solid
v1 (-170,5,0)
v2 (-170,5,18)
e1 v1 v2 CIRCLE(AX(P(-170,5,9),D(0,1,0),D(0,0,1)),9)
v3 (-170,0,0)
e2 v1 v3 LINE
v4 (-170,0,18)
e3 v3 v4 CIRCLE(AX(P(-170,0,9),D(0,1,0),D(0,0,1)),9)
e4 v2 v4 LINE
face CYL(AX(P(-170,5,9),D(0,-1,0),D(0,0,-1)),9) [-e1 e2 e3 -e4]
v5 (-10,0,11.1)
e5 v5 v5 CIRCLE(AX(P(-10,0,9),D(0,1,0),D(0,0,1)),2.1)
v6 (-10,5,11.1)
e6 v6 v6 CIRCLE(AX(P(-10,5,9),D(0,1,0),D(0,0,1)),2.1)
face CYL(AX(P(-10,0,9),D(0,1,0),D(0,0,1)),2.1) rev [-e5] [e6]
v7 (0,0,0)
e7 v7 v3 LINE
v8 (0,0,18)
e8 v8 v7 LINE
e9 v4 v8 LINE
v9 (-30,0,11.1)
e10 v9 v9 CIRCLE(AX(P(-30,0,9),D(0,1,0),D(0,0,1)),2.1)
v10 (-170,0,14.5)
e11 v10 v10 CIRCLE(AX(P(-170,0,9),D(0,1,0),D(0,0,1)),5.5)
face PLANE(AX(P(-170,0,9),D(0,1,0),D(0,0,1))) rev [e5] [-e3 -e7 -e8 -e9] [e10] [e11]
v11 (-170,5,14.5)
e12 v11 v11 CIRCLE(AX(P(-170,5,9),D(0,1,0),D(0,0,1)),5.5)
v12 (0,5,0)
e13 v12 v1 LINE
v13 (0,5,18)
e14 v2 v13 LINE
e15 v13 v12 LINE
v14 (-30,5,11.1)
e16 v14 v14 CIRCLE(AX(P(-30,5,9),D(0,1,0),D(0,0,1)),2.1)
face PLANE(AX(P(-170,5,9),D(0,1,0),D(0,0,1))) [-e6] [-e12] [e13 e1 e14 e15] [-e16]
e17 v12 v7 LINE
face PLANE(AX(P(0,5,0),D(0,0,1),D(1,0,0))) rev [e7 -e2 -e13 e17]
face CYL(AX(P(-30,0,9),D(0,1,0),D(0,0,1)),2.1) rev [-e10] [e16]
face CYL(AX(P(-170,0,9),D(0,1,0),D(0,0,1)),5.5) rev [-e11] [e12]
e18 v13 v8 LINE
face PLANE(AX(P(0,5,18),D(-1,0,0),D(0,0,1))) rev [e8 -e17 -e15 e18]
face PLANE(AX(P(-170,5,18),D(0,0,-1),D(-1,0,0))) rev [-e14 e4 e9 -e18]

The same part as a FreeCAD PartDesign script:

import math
import FreeCAD as App
import Part
import Sketcher

V = App.Vector

doc = App.newDocument("Part")
params = doc.addObject("Spreadsheet::Sheet", "Params")
for row, (alias, value) in enumerate([
    ("sketch1_radius", "9 mm"),
    ("sketch1_width", "170 mm"),
    ("pad1_length", "5 mm"),
    ("sketch2_diameter", "4.2 mm"),
    ("sketch3_diameter", "11 mm"),
], start=1):
    params.set(f"A{row}", alias)
    params.set(f"B{row}", "=" + value)
    params.setAlias(f"B{row}", alias)

body = doc.addObject("PartDesign::Body", "Body")

sketch1 = body.newObject("Sketcher::SketchObject", "Sketch")
sketch1.AttachmentSupport = (doc.getObject("XZ_Plane"), [""])
sketch1.MapMode = "FlatFace"
sketch1.addGeometry([
    Part.LineSegment(V(0, 0, 0), V(-170, 0, 0)),
    Part.ArcOfCircle(Part.Circle(V(-170, 9, 0), V(0, 0, 1), 9), math.radians(90), math.radians(270)),
    Part.LineSegment(V(-170, 18, 0), V(0, 18, 0)),
    Part.LineSegment(V(0, 18, 0), V(0, 0, 0)),
], False)
sketch1.addConstraint([
    Sketcher.Constraint("Tangent", 0, 2, 1, 2),
    Sketcher.Constraint("Tangent", 1, 1, 2, 1),
    Sketcher.Constraint("Coincident", 2, 2, 3, 1),
    Sketcher.Constraint("Coincident", 3, 2, 0, 1),
    Sketcher.Constraint("Horizontal", 0),
    Sketcher.Constraint("Horizontal", 2),
    Sketcher.Constraint("Vertical", 3),
    Sketcher.Constraint("Coincident", 3, 2, -1, 1),
    Sketcher.Constraint("Radius", 1, 9.0),
    Sketcher.Constraint("DistanceX", 0, 2, 0, 1, 170.0),
])
sketch1.setExpression("Constraints[8]", "Params.sketch1_radius")
sketch1.setExpression("Constraints[9]", "Params.sketch1_width")
pad1 = body.newObject("PartDesign::Pad", "Pad")
pad1.Profile = sketch1
pad1.setExpression("Length", "Params.pad1_length")
pad1.Reversed = True

sketch2 = body.newObject("Sketcher::SketchObject", "Sketch001")
sketch2.AttachmentSupport = (doc.getObject("XZ_Plane"), [""])
sketch2.MapMode = "FlatFace"
sketch2.AttachmentOffset = App.Placement(V(0, 0, -5), App.Rotation())
sketch2.addGeometry([
    Part.Circle(V(-10, 9, 0), V(0, 0, 1), 2.1),
    Part.Circle(V(-30, 9, 0), V(0, 0, 1), 2.1),
], False)
sketch2.addConstraint([
    Sketcher.Constraint("Equal", 0, 1),
    Sketcher.Constraint("Horizontal", 0, 3, 1, 3),
    Sketcher.Constraint("Diameter", 0, 4.2),
    Sketcher.Constraint("DistanceX", 0, 3, -1, 1, 10.0),
    Sketcher.Constraint("DistanceY", -1, 1, 0, 3, 9.0),
    Sketcher.Constraint("DistanceX", 1, 3, -1, 1, 30.0),
])
sketch2.setExpression("Constraints[2]", "Params.sketch2_diameter")
pocket1 = body.newObject("PartDesign::Pocket", "Pocket")
pocket1.Profile = sketch2
pocket1.Type = "ThroughAll"
pocket1.Reversed = True

sketch3 = body.newObject("Sketcher::SketchObject", "Sketch002")
sketch3.AttachmentSupport = (doc.getObject("XZ_Plane"), [""])
sketch3.MapMode = "FlatFace"
sketch3.AttachmentOffset = App.Placement(V(0, 0, -5), App.Rotation())
sketch3.addGeometry(Part.Circle(V(-170, 9, 0), V(0, 0, 1), 5.5), False)
sketch3.addConstraint([
    Sketcher.Constraint("Diameter", 0, 11.0),
    Sketcher.Constraint("DistanceX", 0, 3, -1, 1, 170.0),
    Sketcher.Constraint("DistanceY", -1, 1, 0, 3, 9.0),
])
sketch3.setExpression("Constraints[0]", "Params.sketch3_diameter")
pocket2 = body.newObject("PartDesign::Pocket", "Pocket001")
pocket2.Profile = sketch3
pocket2.Type = "ThroughAll"
pocket2.Reversed = True

doc.recompute()
